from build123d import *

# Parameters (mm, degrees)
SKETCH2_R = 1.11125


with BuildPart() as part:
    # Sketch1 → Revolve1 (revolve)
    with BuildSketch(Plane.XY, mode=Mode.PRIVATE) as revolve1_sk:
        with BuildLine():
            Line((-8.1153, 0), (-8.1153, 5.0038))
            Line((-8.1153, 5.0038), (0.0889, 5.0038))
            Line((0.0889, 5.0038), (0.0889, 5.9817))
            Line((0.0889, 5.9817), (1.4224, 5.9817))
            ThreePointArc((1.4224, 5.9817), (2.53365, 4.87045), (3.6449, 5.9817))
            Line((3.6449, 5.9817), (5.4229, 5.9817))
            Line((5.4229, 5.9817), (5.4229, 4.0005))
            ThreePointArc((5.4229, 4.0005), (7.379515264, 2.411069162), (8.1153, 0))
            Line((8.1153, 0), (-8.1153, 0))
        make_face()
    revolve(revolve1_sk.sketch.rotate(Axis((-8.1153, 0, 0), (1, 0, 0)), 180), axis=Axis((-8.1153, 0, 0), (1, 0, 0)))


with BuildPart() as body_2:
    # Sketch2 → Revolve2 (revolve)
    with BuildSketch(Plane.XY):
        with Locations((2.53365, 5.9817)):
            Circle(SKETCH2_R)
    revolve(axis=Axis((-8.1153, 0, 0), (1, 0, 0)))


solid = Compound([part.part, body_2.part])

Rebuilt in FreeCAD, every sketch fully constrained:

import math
import FreeCAD as App
import Part
import Sketcher

V = App.Vector
Q = App.Units.Quantity

doc = App.newDocument("Part")
params = doc.addObject("Spreadsheet::Sheet", "Params")
for row, (alias, value) in enumerate([
    ("sketch1_width", "0.07 in"),
    ("sketch1_width2", "0.639 in"),
    ("sketch1_width3", "0.323 in"),
    ("sketch1_height", "0.197 in"),
    ("sketch1_height2", "0.078 in"),
    ("revolution_angle", "360 deg"),
    ("revolution2_angle", "360 deg"),
], start=1):
    params.set(f"A{row}", alias)
    params.set(f"B{row}", "=" + value)
    params.setAlias(f"B{row}", alias)

body = doc.addObject("PartDesign::Body", "Body")

sketch1 = doc.addObject("Sketcher::SketchObject", "Sketch")
body.addObject(sketch1)
sketch1.AttachmentSupport = (doc.XY_Plane, [""])
sketch1.MapMode = "FlatFace"
sketch1.addGeometry(Part.LineSegment(V(-8.1, 5, 0), V(-8.1, 0, 0)), False)
sketch1.addGeometry(Part.LineSegment(V(-8.1, 0, 0), V(8.1, 0, 0)), False)
sketch1.addGeometry(Part.ArcOfCircle(Part.Circle(V(3.8, 0, 0), V(0, 0, 1), 4.3), math.radians(0), math.radians(68)), False)
sketch1.addGeometry(Part.LineSegment(V(5.4, 4, 0), V(5.4, 6, 0)), False)
sketch1.addGeometry(Part.LineSegment(V(5.4, 6, 0), V(3.6, 6, 0)), False)
sketch1.addGeometry(Part.ArcOfCircle(Part.Circle(V(2.5, 6, 0), V(0, 0, 1), 1.1), math.radians(180), math.radians(360)), False)
sketch1.addGeometry(Part.LineSegment(V(1.4, 6, 0), V(0.1, 6, 0)), False)
sketch1.addGeometry(Part.LineSegment(V(0.1, 6, 0), V(0.1, 5, 0)), False)
sketch1.addGeometry(Part.LineSegment(V(0.1, 5, 0), V(-8.1, 5, 0)), False)
sketch1.addConstraint(Sketcher.Constraint("Coincident", 0, 2, 1, 1))
sketch1.addConstraint(Sketcher.Constraint("Coincident", 1, 2, 2, 1))
sketch1.addConstraint(Sketcher.Constraint("Coincident", 2, 2, 3, 1))
sketch1.addConstraint(Sketcher.Constraint("Coincident", 3, 2, 4, 1))
sketch1.addConstraint(Sketcher.Constraint("Coincident", 4, 2, 5, 2))
sketch1.addConstraint(Sketcher.Constraint("Coincident", 5, 1, 6, 1))
sketch1.addConstraint(Sketcher.Constraint("Coincident", 6, 2, 7, 1))
sketch1.addConstraint(Sketcher.Constraint("Coincident", 7, 2, 8, 1))
sketch1.addConstraint(Sketcher.Constraint("Coincident", 8, 2, 0, 1))
sketch1.addConstraint(Sketcher.Constraint("Vertical", 0))
sketch1.addConstraint(Sketcher.Constraint("Horizontal", 1))
sketch1.addConstraint(Sketcher.Constraint("Vertical", 3))
sketch1.addConstraint(Sketcher.Constraint("Horizontal", 4))
sketch1.addConstraint(Sketcher.Constraint("Horizontal", 6))
sketch1.addConstraint(Sketcher.Constraint("Vertical", 7))
sketch1.addConstraint(Sketcher.Constraint("Horizontal", 8))
sketch1.addConstraint(Sketcher.Constraint("Symmetric", 0, 2, 1, 2, -1, 1))
sketch1.addConstraint(Sketcher.Constraint("PointOnObject", 2, 3, -1))
sketch1.addConstraint(Sketcher.Constraint("Horizontal", 5, 3, 3, 2))
sketch1.addConstraint(Sketcher.Constraint("Horizontal", 4, 2, 5, 1))
sketch1.addConstraint(Sketcher.Constraint("DistanceX", 4, 2, 4, 1, Q("0.07 in")))
sketch1.addConstraint(Sketcher.Constraint("DistanceX", 1, 1, 1, 2, Q("0.639 in")))
sketch1.addConstraint(Sketcher.Constraint("DistanceX", 8, 2, 8, 1, Q("0.323 in")))
sketch1.addConstraint(Sketcher.Constraint("DistanceY", 0, 2, 0, 1, Q("0.197 in")))
sketch1.addConstraint(Sketcher.Constraint("DistanceY", 3, 1, 3, 2, Q("0.078 in")))
sketch1.addConstraint(Sketcher.Constraint("DistanceX", 6, 2, 4, 2, Q("0.14 in")))
sketch1.addConstraint(Sketcher.Constraint("DistanceX", 6, 2, 6, 1, Q("0.0525 in")))
sketch1.addConstraint(Sketcher.Constraint("DistanceY", 7, 2, 7, 1, Q("0.0385 in")))
sketch1.setExpression("Constraints[20]", "Params.sketch1_width")
sketch1.setExpression("Constraints[21]", "Params.sketch1_width2")
sketch1.setExpression("Constraints[22]", "Params.sketch1_width3")
sketch1.setExpression("Constraints[23]", "Params.sketch1_height")
sketch1.setExpression("Constraints[24]", "Params.sketch1_height2")
revolution = doc.addObject("PartDesign::Revolution", "Revolution")
body.addObject(revolution)
revolution.Profile = sketch1
revolution.ReferenceAxis = (sketch1, ["H_Axis"])
revolution.setExpression("Angle", "Params.revolution_angle")
body2 = doc.addObject("PartDesign::Body", "Body001")

sketch2 = doc.addObject("Sketcher::SketchObject", "Sketch001")
body2.addObject(sketch2)
sketch2.AttachmentSupport = (doc.getObject("XY_Plane001"), [""])
sketch2.MapMode = "FlatFace"
sketch2.addGeometry(Part.Circle(V(2.5, 6, 0), V(0, 0, 1), 1.1), False)
sketch2.addConstraint(Sketcher.Constraint("Diameter", 0, Q("0.0875 in")))
sketch2.addConstraint(Sketcher.Constraint("DistanceY", -1, 1, 0, 3, Q("0.2355 in")))
sketch2.addConstraint(Sketcher.Constraint("DistanceX", -1, 1, 0, 3, 2.53365))
revolution2 = doc.addObject("PartDesign::Revolution", "Revolution001")
body2.addObject(revolution2)
revolution2.Profile = sketch2
revolution2.ReferenceAxis = (sketch2, ["H_Axis"])
revolution2.setExpression("Angle", "Params.revolution2_angle")

doc.recompute()
